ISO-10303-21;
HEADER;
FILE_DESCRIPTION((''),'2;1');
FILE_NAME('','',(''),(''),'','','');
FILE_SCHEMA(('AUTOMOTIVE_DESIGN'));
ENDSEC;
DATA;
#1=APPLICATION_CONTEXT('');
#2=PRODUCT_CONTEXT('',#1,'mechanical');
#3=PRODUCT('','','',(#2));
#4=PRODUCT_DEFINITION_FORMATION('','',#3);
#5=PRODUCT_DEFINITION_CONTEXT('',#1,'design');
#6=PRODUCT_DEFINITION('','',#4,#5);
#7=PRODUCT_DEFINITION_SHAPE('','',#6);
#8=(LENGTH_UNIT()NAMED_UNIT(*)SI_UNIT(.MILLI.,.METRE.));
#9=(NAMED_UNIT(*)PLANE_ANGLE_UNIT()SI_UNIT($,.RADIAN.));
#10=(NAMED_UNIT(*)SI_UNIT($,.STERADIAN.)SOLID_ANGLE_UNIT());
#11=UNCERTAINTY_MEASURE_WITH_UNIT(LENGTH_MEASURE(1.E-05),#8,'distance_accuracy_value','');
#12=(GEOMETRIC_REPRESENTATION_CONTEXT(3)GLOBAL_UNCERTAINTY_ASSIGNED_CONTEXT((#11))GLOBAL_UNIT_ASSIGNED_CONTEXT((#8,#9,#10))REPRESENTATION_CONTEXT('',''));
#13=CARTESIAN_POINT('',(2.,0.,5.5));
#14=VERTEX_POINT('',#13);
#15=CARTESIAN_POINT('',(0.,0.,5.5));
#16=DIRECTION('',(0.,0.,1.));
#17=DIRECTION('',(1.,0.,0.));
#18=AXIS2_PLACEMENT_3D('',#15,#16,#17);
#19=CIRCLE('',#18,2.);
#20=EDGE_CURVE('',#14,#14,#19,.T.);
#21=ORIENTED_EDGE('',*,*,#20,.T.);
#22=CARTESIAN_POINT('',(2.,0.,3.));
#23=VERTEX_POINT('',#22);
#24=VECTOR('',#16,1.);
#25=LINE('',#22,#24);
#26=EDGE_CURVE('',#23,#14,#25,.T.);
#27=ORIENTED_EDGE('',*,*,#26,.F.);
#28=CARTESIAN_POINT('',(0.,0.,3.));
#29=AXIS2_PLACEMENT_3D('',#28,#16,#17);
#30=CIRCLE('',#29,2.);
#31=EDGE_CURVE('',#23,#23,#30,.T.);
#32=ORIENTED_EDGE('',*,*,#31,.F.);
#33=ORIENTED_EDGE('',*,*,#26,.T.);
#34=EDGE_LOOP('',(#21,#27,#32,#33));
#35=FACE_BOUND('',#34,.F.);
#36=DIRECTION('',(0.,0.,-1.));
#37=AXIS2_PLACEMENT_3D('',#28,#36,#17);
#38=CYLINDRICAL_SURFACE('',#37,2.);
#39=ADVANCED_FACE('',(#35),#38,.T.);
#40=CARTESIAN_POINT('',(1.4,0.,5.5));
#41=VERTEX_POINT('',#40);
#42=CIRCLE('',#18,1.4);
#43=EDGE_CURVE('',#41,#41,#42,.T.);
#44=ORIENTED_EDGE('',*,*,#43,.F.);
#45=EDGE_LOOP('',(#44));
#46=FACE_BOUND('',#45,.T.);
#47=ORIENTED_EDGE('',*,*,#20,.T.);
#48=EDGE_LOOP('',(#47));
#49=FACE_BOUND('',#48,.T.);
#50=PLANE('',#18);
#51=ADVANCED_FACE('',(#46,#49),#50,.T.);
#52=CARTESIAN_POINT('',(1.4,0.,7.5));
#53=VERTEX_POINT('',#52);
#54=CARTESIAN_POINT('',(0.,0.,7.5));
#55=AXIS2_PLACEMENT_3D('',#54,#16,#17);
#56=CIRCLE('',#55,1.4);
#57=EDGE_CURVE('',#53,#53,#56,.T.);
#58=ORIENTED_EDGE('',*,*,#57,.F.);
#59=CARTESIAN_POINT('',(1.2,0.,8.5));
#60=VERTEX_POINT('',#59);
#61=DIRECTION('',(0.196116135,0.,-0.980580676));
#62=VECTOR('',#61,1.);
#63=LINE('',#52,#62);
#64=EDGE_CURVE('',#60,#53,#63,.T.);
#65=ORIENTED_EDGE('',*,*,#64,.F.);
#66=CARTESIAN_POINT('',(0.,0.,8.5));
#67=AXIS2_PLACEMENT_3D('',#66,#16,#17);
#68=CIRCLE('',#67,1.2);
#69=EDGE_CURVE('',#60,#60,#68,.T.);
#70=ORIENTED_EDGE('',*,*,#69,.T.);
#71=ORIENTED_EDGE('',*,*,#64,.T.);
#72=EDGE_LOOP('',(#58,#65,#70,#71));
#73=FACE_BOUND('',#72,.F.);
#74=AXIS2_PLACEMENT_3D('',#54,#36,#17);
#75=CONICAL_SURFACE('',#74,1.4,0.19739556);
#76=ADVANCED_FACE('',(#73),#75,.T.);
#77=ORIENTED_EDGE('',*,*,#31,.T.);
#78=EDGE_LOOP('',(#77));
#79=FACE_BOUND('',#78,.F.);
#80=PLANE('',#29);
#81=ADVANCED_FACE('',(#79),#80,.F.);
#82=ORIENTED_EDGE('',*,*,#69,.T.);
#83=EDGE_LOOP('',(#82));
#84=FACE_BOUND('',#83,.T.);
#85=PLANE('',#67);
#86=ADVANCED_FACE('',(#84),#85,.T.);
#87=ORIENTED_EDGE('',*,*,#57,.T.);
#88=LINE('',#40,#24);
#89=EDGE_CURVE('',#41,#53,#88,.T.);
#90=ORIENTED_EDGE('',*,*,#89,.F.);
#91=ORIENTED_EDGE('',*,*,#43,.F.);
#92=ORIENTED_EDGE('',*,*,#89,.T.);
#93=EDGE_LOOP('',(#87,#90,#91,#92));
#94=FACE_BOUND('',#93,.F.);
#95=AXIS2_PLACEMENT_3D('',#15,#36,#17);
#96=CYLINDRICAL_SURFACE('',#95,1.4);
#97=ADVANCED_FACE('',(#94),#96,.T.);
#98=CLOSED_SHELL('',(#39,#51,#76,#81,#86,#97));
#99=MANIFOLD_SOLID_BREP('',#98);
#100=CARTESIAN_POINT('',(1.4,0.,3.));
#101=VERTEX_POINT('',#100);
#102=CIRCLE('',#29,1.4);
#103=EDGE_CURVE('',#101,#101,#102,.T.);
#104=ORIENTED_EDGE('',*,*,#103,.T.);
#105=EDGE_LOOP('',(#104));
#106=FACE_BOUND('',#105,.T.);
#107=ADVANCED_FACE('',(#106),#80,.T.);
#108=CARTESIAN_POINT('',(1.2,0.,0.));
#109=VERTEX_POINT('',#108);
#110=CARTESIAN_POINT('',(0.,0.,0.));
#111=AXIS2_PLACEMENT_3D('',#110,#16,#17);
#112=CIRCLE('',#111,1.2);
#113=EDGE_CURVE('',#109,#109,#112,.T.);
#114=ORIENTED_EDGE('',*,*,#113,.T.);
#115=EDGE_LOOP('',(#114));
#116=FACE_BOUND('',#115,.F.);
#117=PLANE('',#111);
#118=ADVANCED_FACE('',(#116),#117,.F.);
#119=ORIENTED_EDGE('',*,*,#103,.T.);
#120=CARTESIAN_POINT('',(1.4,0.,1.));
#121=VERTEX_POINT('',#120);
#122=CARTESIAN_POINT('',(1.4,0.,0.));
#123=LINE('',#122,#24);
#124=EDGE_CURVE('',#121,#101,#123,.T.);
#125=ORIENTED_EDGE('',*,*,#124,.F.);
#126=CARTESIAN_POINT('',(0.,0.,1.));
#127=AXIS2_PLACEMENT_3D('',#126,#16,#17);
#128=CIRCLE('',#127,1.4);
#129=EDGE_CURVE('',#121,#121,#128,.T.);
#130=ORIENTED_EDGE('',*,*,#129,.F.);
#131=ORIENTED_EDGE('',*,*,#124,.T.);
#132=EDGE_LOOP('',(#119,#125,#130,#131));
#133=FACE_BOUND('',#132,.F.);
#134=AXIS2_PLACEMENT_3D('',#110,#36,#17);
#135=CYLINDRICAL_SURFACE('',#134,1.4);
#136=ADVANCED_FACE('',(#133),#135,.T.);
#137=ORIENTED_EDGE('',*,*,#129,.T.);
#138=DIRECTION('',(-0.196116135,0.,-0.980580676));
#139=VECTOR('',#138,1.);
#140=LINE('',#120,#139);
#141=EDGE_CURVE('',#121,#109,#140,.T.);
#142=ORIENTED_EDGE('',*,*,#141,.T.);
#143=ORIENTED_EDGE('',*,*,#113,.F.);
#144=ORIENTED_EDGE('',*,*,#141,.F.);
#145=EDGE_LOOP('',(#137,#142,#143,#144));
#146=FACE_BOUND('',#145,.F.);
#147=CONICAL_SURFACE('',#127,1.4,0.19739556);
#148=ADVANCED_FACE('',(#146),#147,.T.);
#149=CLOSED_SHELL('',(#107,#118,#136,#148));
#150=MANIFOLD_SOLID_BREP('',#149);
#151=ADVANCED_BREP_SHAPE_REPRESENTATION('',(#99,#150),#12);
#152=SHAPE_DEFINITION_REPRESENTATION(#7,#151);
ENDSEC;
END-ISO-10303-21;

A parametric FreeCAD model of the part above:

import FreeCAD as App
import Part
import Sketcher

V = App.Vector
Q = App.Units.Quantity


def edges_at(feature, points):
    """Names of the edges that pass closest to the given points."""
    edges = feature.Shape.Edges
    near = lambda p: min(range(len(edges)), key=lambda i: edges[i].distToShape(Part.Vertex(*p))[0])
    return sorted({f"Edge{near(p) + 1}" for p in points})

doc = App.newDocument("Part")
body = doc.addObject("PartDesign::Body", "Body")

# Sketch on XY plane
sketch1 = doc.addObject("Sketcher::SketchObject", "Sketch")
body.addObject(sketch1)
sketch1.AttachmentSupport = (doc.XY_Plane, [""])
sketch1.MapMode = "FlatFace"
sketch1.addGeometry(Part.Circle(V(0, 0, 0), V(0, 0, 1), 1.4), False)
sketch1.addConstraint(Sketcher.Constraint("Coincident", 0, 3, -1, 1))
sketch1.addConstraint(Sketcher.Constraint("Diameter", 0, Q("2.8 mm")))
pad1 = doc.addObject("PartDesign::Pad", "Pad")
body.addObject(pad1)
pad1.Profile = sketch1
pad1.Length = 3
doc.recompute()

chamfer = doc.addObject("PartDesign::Chamfer", "Chamfer")
body.addObject(chamfer)
chamfer.Base = (pad1, edges_at(pad1, [(-1.4, 0, 0)]))
chamfer.ChamferType = "Two distances"
chamfer.Size = 1
chamfer.Size2 = 0.2
body2 = doc.addObject("PartDesign::Body", "Body001")

# Sketch on XY plane
sketch2 = doc.addObject("Sketcher::SketchObject", "Sketch001")
body2.addObject(sketch2)
sketch2.AttachmentSupport = (doc.getObject("XY_Plane001"), [""])
sketch2.MapMode = "FlatFace"
sketch2.AttachmentOffset = App.Placement(V(0, 0, 3), App.Rotation())
sketch2.addGeometry(Part.Circle(V(0, 0, 0), V(0, 0, 1), 2), False)
sketch2.addConstraint(Sketcher.Constraint("Coincident", 0, 3, -1, 1))
sketch2.addConstraint(Sketcher.Constraint("Diameter", 0, Q("4 mm")))
pad2 = doc.addObject("PartDesign::Pad", "Pad001")
body2.addObject(pad2)
pad2.Profile = sketch2
pad2.Length = 2.5

# Sketch on XY plane
sketch3 = doc.addObject("Sketcher::SketchObject", "Sketch002")
body2.addObject(sketch3)
sketch3.AttachmentSupport = (doc.getObject("XY_Plane001"), [""])
sketch3.MapMode = "FlatFace"
sketch3.AttachmentOffset = App.Placement(V(0, 0, 5.5), App.Rotation())
sketch3.addGeometry(Part.Circle(V(0, 0, 0), V(0, 0, 1), 1.4), False)
sketch3.addConstraint(Sketcher.Constraint("Coincident", 0, 3, -1, 1))
sketch3.addConstraint(Sketcher.Constraint("Diameter", 0, Q("2.8 mm")))
pad3 = doc.addObject("PartDesign::Pad", "Pad002")
body2.addObject(pad3)
pad3.Profile = sketch3
pad3.Length = 3
doc.recompute()

chamfer2 = doc.addObject("PartDesign::Chamfer", "Chamfer001")
body2.addObject(chamfer2)
chamfer2.Base = (pad3, edges_at(pad3, [(-1.4, 0, 8.5)]))
chamfer2.ChamferType = "Two distances"
chamfer2.Size = 0.2
chamfer2.Size2 = 1
chamfer2.FlipDirection = True

doc.recompute()
